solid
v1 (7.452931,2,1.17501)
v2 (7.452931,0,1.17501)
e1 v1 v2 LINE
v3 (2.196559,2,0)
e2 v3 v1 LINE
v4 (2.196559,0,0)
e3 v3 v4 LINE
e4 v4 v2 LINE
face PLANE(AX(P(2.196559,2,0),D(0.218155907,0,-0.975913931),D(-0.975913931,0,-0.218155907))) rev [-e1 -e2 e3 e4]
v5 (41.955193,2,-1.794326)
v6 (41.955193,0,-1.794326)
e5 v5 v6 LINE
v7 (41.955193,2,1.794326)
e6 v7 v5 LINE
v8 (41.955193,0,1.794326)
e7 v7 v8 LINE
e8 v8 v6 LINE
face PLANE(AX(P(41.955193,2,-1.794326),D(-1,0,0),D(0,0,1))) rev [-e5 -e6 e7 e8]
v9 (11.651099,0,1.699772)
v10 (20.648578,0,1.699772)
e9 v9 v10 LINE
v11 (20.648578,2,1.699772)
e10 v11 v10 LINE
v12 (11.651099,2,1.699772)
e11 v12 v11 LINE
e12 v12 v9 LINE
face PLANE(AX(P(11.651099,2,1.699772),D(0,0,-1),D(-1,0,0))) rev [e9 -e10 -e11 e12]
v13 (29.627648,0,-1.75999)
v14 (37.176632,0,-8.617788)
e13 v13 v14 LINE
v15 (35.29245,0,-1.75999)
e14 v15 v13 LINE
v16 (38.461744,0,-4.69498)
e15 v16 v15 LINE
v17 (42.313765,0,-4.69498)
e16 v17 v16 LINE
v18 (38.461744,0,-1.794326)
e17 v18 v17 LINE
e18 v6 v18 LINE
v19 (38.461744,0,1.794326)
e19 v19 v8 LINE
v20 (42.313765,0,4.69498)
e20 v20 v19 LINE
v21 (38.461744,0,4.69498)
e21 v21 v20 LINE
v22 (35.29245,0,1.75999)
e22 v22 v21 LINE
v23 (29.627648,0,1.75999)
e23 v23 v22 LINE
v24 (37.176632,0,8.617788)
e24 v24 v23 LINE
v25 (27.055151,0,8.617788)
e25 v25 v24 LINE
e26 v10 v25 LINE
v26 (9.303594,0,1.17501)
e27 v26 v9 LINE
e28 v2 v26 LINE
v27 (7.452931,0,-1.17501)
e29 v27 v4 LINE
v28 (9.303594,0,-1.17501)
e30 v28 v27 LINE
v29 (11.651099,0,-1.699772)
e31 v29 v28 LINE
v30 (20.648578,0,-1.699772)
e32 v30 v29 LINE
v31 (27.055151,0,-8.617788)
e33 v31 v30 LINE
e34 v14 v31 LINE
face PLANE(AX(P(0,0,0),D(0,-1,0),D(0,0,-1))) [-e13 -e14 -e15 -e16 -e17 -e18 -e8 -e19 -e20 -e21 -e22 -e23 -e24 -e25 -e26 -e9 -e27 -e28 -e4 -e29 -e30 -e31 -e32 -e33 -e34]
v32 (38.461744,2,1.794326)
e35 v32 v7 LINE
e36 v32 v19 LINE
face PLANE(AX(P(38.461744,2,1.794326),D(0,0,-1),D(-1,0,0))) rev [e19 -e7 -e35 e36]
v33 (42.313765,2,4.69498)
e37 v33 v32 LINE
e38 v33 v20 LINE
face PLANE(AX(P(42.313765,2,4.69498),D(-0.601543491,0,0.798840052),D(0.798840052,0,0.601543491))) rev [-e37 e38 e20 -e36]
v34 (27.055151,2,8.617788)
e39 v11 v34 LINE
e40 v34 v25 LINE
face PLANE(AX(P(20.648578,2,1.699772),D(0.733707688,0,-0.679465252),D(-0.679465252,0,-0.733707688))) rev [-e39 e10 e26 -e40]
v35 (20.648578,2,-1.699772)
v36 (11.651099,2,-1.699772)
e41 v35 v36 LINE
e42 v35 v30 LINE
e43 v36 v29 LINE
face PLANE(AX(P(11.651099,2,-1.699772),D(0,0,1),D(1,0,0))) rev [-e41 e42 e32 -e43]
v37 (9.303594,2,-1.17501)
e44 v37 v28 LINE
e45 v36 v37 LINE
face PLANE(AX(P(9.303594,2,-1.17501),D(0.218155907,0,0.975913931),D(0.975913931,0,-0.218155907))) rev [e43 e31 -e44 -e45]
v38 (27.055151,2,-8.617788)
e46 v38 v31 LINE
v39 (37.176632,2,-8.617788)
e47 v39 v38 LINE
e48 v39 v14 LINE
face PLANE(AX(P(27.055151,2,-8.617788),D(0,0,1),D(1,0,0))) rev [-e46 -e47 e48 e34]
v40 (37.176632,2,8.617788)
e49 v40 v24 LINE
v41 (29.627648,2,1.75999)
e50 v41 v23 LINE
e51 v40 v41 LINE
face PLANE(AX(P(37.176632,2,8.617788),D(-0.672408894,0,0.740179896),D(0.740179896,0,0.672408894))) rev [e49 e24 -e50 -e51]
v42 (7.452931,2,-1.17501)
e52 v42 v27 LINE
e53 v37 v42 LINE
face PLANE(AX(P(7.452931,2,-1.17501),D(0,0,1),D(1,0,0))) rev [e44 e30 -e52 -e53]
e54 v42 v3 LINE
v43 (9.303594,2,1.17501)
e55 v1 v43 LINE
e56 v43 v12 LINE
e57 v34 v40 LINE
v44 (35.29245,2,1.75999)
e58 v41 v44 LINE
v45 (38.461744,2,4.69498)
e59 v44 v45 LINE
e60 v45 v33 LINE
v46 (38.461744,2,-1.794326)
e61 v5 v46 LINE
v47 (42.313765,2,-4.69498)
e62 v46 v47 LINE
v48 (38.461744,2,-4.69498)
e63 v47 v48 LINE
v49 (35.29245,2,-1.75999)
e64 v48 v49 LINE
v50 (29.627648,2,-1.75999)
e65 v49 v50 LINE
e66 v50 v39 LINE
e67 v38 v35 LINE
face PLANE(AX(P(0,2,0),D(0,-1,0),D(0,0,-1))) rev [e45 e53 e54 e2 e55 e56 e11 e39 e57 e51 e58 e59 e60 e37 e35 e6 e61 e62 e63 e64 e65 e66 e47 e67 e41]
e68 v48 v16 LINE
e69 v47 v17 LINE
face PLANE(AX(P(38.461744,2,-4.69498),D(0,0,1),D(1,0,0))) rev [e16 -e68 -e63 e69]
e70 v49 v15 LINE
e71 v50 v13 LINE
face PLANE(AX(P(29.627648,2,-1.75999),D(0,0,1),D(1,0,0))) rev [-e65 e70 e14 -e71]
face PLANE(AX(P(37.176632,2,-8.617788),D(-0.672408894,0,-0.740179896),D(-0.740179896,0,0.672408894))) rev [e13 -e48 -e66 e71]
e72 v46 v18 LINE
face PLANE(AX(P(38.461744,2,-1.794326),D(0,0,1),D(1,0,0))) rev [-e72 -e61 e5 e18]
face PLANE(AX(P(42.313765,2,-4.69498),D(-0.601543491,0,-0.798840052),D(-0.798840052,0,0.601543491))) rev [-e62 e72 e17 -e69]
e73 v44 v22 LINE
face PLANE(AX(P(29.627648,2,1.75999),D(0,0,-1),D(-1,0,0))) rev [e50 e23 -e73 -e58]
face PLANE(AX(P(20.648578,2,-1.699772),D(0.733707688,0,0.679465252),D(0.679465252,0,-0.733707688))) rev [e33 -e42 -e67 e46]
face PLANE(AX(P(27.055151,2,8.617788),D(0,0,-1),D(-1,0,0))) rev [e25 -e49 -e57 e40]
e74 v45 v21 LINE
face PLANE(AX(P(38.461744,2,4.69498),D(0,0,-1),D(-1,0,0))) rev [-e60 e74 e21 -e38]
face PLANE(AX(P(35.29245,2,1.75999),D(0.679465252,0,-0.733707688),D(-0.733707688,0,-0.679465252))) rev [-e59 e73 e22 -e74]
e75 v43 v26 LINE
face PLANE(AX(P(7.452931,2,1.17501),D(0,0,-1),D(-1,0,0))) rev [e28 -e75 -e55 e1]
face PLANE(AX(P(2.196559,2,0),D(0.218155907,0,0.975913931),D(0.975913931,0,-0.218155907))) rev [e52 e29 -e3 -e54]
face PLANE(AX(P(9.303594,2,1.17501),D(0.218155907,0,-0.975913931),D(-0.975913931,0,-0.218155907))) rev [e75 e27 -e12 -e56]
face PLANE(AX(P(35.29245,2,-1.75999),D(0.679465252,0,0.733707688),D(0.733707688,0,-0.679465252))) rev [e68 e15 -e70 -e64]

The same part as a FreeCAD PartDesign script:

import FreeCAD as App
import Part
import Sketcher
from FreeCAD import Vector
Q = App.Units.Quantity

doc = App.newDocument("Part")
body = doc.addObject("PartDesign::Body", "Body")

# Sketch on XZ plane
sketch1 = body.newObject("Sketcher::SketchObject", "Sketch")
sketch1.AttachmentSupport = (doc.getObject("XZ_Plane"), [""])
sketch1.MapMode = "FlatFace"
sketch1.addGeometry([
    Part.LineSegment(Vector(7.5, -1.2, 0), Vector(2.2, 0, 0)),  # 0
    Part.LineSegment(Vector(2.2, 0, 0), Vector(7.5, 1.2, 0)),  # 1
    Part.LineSegment(Vector(7.5, 1.2, 0), Vector(9.3, 1.2, 0)),  # 2
    Part.LineSegment(Vector(9.3, 1.2, 0), Vector(11.7, 1.7, 0)),  # 3
    Part.LineSegment(Vector(11.7, 1.7, 0), Vector(20.6, 1.7, 0)),  # 4
    Part.LineSegment(Vector(20.6, 1.7, 0), Vector(27.1, 8.6, 0)),  # 5
    Part.LineSegment(Vector(27.1, 8.6, 0), Vector(37.2, 8.6, 0)),  # 6
    Part.LineSegment(Vector(37.2, 8.6, 0), Vector(29.6, 1.8, 0)),  # 7
    Part.LineSegment(Vector(29.6, 1.8, 0), Vector(35.3, 1.8, 0)),  # 8
    Part.LineSegment(Vector(35.3, 1.8, 0), Vector(38.5, 4.7, 0)),  # 9
    Part.LineSegment(Vector(38.5, 4.7, 0), Vector(42.3, 4.7, 0)),  # 10
    Part.LineSegment(Vector(42.3, 4.7, 0), Vector(38.5, 1.8, 0)),  # 11
    Part.LineSegment(Vector(38.5, 1.8, 0), Vector(42, 1.8, 0)),  # 12
    Part.LineSegment(Vector(42, 1.8, 0), Vector(42, -1.8, 0)),  # 13
    Part.LineSegment(Vector(42, -1.8, 0), Vector(38.5, -1.8, 0)),  # 14
    Part.LineSegment(Vector(38.5, -1.8, 0), Vector(42.3, -4.7, 0)),  # 15
    Part.LineSegment(Vector(42.3, -4.7, 0), Vector(38.5, -4.7, 0)),  # 16
    Part.LineSegment(Vector(38.5, -4.7, 0), Vector(35.3, -1.8, 0)),  # 17
    Part.LineSegment(Vector(35.3, -1.8, 0), Vector(29.6, -1.8, 0)),  # 18
    Part.LineSegment(Vector(29.6, -1.8, 0), Vector(37.2, -8.6, 0)),  # 19
    Part.LineSegment(Vector(37.2, -8.6, 0), Vector(27.1, -8.6, 0)),  # 20
    Part.LineSegment(Vector(27.1, -8.6, 0), Vector(20.6, -1.7, 0)),  # 21
    Part.LineSegment(Vector(20.6, -1.7, 0), Vector(11.7, -1.7, 0)),  # 22
    Part.LineSegment(Vector(11.7, -1.7, 0), Vector(9.3, -1.2, 0)),  # 23
    Part.LineSegment(Vector(9.3, -1.2, 0), Vector(7.5, -1.2, 0)),  # 24
], False)
sketch1.addConstraint([
    Sketcher.Constraint("Coincident", 0, 2, 1, 1),
    Sketcher.Constraint("Coincident", 1, 2, 2, 1),
    Sketcher.Constraint("Coincident", 2, 2, 3, 1),
    Sketcher.Constraint("Coincident", 3, 2, 4, 1),
    Sketcher.Constraint("Coincident", 4, 2, 5, 1),
    Sketcher.Constraint("Coincident", 5, 2, 6, 1),
    Sketcher.Constraint("Coincident", 6, 2, 7, 1),
    Sketcher.Constraint("Coincident", 7, 2, 8, 1),
    Sketcher.Constraint("Coincident", 8, 2, 9, 1),
    Sketcher.Constraint("Coincident", 9, 2, 10, 1),
    Sketcher.Constraint("Coincident", 10, 2, 11, 1),
    Sketcher.Constraint("Coincident", 11, 2, 12, 1),
    Sketcher.Constraint("Coincident", 12, 2, 13, 1),
    Sketcher.Constraint("Coincident", 13, 2, 14, 1),
    Sketcher.Constraint("Coincident", 14, 2, 15, 1),
    Sketcher.Constraint("Coincident", 15, 2, 16, 1),
    Sketcher.Constraint("Coincident", 16, 2, 17, 1),
    Sketcher.Constraint("Coincident", 17, 2, 18, 1),
    Sketcher.Constraint("Coincident", 18, 2, 19, 1),
    Sketcher.Constraint("Coincident", 19, 2, 20, 1),
    Sketcher.Constraint("Coincident", 20, 2, 21, 1),
    Sketcher.Constraint("Coincident", 21, 2, 22, 1),
    Sketcher.Constraint("Coincident", 22, 2, 23, 1),
    Sketcher.Constraint("Coincident", 23, 2, 24, 1),
    Sketcher.Constraint("Coincident", 24, 2, 0, 1),
    Sketcher.Constraint("Horizontal", 2),
    Sketcher.Constraint("Horizontal", 4),
    Sketcher.Constraint("Horizontal", 6),
    Sketcher.Constraint("Horizontal", 8),
    Sketcher.Constraint("Horizontal", 10),
    Sketcher.Constraint("Horizontal", 12),
    Sketcher.Constraint("Vertical", 13),
    Sketcher.Constraint("Horizontal", 14),
    Sketcher.Constraint("Horizontal", 16),
    Sketcher.Constraint("Horizontal", 18),
    Sketcher.Constraint("Horizontal", 20),
    Sketcher.Constraint("Horizontal", 22),
    Sketcher.Constraint("Horizontal", 24),
    Sketcher.Constraint("Symmetric", 11, 2, 14, 2, -1),
    Sketcher.Constraint("Symmetric", 10, 2, 15, 2, -1),
    Sketcher.Constraint("Symmetric", 8, 2, 17, 2, -1),
    Sketcher.Constraint("Symmetric", 6, 2, 19, 2, -1),
    Sketcher.Constraint("Symmetric", 4, 2, 21, 2, -1),
    Sketcher.Constraint("Symmetric", 2, 2, 23, 2, -1),
    Sketcher.Constraint("PointOnObject", 0, 2, -1),
    Sketcher.Constraint("Parallel", 1, 3),
    Sketcher.Constraint("Perpendicular", 5, 17),
    Sketcher.Constraint("Perpendicular", 9, 21),
    Sketcher.Constraint("Parallel", 0, 23),
    Sketcher.Constraint("Vertical", 9, 2, 11, 2),
    Sketcher.Constraint("Vertical", 14, 2, 16, 2),
    Sketcher.Constraint("Vertical", 7, 2, 18, 2),
    Sketcher.Constraint("Vertical", 3, 2, 22, 2),
    Sketcher.Constraint("DistanceX", 4, 1, 4, 2, Q("8.997479 mm")),
    Sketcher.Constraint("DistanceX", 6, 1, 6, 2, Q("10.121481 mm")),
    Sketcher.Constraint("DistanceX", 10, 1, 10, 2, Q("3.852022 mm")),
    Sketcher.Constraint("DistanceX", 12, 1, 12, 2, Q("3.493449 mm")),
    Sketcher.Constraint("DistanceX", -1, 1, 3, 2, Q("11.651099 mm")),
    Sketcher.Constraint("DistanceX", 1, 2, 6, 2, Q("29.723701 mm")),
    Sketcher.Constraint("DistanceX", 5, 2, 8, 2, Q("8.237299 mm")),
    Sketcher.Constraint("Distance", 7, Q("10.19885 mm")),
    Sketcher.Constraint("Distance", 9, Q("4.319559 mm")),
    Sketcher.Constraint("Distance", 11, Q("4.822019 mm")),
    Sketcher.Constraint("DistanceX", 2, 1, 2, 2, Q("1.850663 mm")),
    Sketcher.Constraint("DistanceX", 8, 1, 8, 2, Q("5.664802 mm")),
    Sketcher.Constraint("DistanceY", 13, 2, 13, 1, Q("3.588652 mm")),
    Sketcher.Constraint("DistanceX", -1, 1, 0, 2, Q("2.196559 mm")),
    Sketcher.Constraint("DistanceX", -1, 1, 1, 2, Q("7.452931 mm")),
    Sketcher.Constraint("DistanceY", -1, 1, 1, 2, Q("1.17501 mm")),
])
pad1 = body.newObject("PartDesign::Pad", "Pad")
pad1.Profile = sketch1
pad1.Length = 2
pad1.Reversed = True

doc.recompute()
